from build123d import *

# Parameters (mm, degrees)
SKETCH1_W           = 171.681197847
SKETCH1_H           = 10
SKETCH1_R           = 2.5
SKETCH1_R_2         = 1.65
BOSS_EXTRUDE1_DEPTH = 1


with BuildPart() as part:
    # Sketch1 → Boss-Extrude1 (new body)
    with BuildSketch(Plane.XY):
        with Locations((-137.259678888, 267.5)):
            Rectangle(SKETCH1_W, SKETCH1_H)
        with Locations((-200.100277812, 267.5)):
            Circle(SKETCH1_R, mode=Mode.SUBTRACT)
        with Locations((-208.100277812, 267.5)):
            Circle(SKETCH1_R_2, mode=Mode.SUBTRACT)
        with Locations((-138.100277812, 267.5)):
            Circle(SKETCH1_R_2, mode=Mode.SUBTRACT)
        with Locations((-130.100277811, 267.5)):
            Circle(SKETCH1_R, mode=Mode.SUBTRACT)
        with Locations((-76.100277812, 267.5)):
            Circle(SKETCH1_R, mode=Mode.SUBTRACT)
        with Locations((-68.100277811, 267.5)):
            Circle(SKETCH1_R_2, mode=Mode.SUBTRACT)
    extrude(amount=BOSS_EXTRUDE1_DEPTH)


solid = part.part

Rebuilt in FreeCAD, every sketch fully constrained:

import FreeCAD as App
import Part
import Sketcher
from FreeCAD import Vector

doc = App.newDocument("Part")
params = doc.addObject("Spreadsheet::Sheet", "Params")
for row, (alias, value) in enumerate([
    ("sketch1_diameter", "5 mm"),
    ("sketch1_diameter2", "3.3 mm"),
    ("sketch1_height", "10 mm"),
    ("pad1_length", "1 mm"),
], start=1):
    params.set(f"A{row}", alias)
    params.set(f"B{row}", "=" + value)
    params.setAlias(f"B{row}", alias)

body = doc.addObject("PartDesign::Body", "Body")

# Sketch on XY plane
sketch1 = body.newObject("Sketcher::SketchObject", "Sketch")
sketch1.AttachmentSupport = (doc.getObject("XY_Plane"), [""])
sketch1.MapMode = "FlatFace"
sketch1.addGeometry([
    Part.LineSegment(Vector(-223.100278, 272.5, 0), Vector(-223.100278, 262.5, 0)),  # 0
    Part.LineSegment(Vector(-223.100278, 262.5, 0), Vector(-51.41908, 262.5, 0)),  # 1
    Part.LineSegment(Vector(-51.41908, 262.5, 0), Vector(-51.41908, 272.5, 0)),  # 2
    Part.LineSegment(Vector(-51.41908, 272.5, 0), Vector(-223.100278, 272.5, 0)),  # 3
    Part.Circle(Vector(-208.100278, 267.5, 0), Vector(0, 0, 1), 1.65),  # 4
    Part.Circle(Vector(-200.100278, 267.5, 0), Vector(0, 0, 1), 2.5),  # 5
    Part.Circle(Vector(-138.100278, 267.5, 0), Vector(0, 0, 1), 1.65),  # 6
    Part.Circle(Vector(-130.100278, 267.5, 0), Vector(0, 0, 1), 2.5),  # 7
    Part.Circle(Vector(-76.100278, 267.5, 0), Vector(0, 0, 1), 2.5),  # 8
    Part.Circle(Vector(-68.100278, 267.5, 0), Vector(0, 0, 1), 1.65),  # 9
], False)
sketch1.addConstraint([
    Sketcher.Constraint("Coincident", 0, 2, 1, 1),
    Sketcher.Constraint("Coincident", 1, 2, 2, 1),
    Sketcher.Constraint("Coincident", 2, 2, 3, 1),
    Sketcher.Constraint("Coincident", 3, 2, 0, 1),
    Sketcher.Constraint("Vertical", 0),
    Sketcher.Constraint("Horizontal", 1),
    Sketcher.Constraint("Vertical", 2),
    Sketcher.Constraint("Horizontal", 3),
    Sketcher.Constraint("Equal", 4, 6),
    Sketcher.Constraint("Equal", 5, 7),
    Sketcher.Constraint("Equal", 7, 8),
    Sketcher.Constraint("Equal", 6, 9),
    Sketcher.Constraint("Horizontal", 4, 3, 5, 3),
    Sketcher.Constraint("Horizontal", 5, 3, 6, 3),
    Sketcher.Constraint("Horizontal", 6, 3, 7, 3),
    Sketcher.Constraint("Horizontal", 7, 3, 8, 3),
    Sketcher.Constraint("Horizontal", 8, 3, 9, 3),
    Sketcher.Constraint("Diameter", 5, 5.0),
    Sketcher.Constraint("Diameter", 4, 3.3),
    Sketcher.Constraint("DistanceY", 0, 2, 0, 1, 10.0),
    Sketcher.Constraint("DistanceX", 4, 3, 5, 3, 8.0),
    Sketcher.Constraint("DistanceX", 5, 3, 6, 3, 62.0),
    Sketcher.Constraint("DistanceX", 6, 3, 7, 3, 8.0),
    Sketcher.Constraint("DistanceX", 7, 3, 8, 3, 54.0),
    Sketcher.Constraint("DistanceX", 8, 3, 9, 3, 8.0),
    Sketcher.Constraint("DistanceX", 0, 2, 4, 3, 15.0),
    Sketcher.Constraint("DistanceY", 0, 2, 4, 3, 5.0),
    Sketcher.Constraint("DistanceY", -1, 1, 4, 3, 267.5),
    Sketcher.Constraint("DistanceX", 1, 1, 1, 2, 171.681198),
    Sketcher.Constraint("DistanceX", 1, 2, -1, 1, 51.41908),
])
sketch1.setExpression("Constraints[17]", "Params.sketch1_diameter")
sketch1.setExpression("Constraints[18]", "Params.sketch1_diameter2")
sketch1.setExpression("Constraints[19]", "Params.sketch1_height")
pad1 = body.newObject("PartDesign::Pad", "Pad")
pad1.Profile = sketch1
pad1.setExpression("Length", "Params.pad1_length")

doc.recompute()
